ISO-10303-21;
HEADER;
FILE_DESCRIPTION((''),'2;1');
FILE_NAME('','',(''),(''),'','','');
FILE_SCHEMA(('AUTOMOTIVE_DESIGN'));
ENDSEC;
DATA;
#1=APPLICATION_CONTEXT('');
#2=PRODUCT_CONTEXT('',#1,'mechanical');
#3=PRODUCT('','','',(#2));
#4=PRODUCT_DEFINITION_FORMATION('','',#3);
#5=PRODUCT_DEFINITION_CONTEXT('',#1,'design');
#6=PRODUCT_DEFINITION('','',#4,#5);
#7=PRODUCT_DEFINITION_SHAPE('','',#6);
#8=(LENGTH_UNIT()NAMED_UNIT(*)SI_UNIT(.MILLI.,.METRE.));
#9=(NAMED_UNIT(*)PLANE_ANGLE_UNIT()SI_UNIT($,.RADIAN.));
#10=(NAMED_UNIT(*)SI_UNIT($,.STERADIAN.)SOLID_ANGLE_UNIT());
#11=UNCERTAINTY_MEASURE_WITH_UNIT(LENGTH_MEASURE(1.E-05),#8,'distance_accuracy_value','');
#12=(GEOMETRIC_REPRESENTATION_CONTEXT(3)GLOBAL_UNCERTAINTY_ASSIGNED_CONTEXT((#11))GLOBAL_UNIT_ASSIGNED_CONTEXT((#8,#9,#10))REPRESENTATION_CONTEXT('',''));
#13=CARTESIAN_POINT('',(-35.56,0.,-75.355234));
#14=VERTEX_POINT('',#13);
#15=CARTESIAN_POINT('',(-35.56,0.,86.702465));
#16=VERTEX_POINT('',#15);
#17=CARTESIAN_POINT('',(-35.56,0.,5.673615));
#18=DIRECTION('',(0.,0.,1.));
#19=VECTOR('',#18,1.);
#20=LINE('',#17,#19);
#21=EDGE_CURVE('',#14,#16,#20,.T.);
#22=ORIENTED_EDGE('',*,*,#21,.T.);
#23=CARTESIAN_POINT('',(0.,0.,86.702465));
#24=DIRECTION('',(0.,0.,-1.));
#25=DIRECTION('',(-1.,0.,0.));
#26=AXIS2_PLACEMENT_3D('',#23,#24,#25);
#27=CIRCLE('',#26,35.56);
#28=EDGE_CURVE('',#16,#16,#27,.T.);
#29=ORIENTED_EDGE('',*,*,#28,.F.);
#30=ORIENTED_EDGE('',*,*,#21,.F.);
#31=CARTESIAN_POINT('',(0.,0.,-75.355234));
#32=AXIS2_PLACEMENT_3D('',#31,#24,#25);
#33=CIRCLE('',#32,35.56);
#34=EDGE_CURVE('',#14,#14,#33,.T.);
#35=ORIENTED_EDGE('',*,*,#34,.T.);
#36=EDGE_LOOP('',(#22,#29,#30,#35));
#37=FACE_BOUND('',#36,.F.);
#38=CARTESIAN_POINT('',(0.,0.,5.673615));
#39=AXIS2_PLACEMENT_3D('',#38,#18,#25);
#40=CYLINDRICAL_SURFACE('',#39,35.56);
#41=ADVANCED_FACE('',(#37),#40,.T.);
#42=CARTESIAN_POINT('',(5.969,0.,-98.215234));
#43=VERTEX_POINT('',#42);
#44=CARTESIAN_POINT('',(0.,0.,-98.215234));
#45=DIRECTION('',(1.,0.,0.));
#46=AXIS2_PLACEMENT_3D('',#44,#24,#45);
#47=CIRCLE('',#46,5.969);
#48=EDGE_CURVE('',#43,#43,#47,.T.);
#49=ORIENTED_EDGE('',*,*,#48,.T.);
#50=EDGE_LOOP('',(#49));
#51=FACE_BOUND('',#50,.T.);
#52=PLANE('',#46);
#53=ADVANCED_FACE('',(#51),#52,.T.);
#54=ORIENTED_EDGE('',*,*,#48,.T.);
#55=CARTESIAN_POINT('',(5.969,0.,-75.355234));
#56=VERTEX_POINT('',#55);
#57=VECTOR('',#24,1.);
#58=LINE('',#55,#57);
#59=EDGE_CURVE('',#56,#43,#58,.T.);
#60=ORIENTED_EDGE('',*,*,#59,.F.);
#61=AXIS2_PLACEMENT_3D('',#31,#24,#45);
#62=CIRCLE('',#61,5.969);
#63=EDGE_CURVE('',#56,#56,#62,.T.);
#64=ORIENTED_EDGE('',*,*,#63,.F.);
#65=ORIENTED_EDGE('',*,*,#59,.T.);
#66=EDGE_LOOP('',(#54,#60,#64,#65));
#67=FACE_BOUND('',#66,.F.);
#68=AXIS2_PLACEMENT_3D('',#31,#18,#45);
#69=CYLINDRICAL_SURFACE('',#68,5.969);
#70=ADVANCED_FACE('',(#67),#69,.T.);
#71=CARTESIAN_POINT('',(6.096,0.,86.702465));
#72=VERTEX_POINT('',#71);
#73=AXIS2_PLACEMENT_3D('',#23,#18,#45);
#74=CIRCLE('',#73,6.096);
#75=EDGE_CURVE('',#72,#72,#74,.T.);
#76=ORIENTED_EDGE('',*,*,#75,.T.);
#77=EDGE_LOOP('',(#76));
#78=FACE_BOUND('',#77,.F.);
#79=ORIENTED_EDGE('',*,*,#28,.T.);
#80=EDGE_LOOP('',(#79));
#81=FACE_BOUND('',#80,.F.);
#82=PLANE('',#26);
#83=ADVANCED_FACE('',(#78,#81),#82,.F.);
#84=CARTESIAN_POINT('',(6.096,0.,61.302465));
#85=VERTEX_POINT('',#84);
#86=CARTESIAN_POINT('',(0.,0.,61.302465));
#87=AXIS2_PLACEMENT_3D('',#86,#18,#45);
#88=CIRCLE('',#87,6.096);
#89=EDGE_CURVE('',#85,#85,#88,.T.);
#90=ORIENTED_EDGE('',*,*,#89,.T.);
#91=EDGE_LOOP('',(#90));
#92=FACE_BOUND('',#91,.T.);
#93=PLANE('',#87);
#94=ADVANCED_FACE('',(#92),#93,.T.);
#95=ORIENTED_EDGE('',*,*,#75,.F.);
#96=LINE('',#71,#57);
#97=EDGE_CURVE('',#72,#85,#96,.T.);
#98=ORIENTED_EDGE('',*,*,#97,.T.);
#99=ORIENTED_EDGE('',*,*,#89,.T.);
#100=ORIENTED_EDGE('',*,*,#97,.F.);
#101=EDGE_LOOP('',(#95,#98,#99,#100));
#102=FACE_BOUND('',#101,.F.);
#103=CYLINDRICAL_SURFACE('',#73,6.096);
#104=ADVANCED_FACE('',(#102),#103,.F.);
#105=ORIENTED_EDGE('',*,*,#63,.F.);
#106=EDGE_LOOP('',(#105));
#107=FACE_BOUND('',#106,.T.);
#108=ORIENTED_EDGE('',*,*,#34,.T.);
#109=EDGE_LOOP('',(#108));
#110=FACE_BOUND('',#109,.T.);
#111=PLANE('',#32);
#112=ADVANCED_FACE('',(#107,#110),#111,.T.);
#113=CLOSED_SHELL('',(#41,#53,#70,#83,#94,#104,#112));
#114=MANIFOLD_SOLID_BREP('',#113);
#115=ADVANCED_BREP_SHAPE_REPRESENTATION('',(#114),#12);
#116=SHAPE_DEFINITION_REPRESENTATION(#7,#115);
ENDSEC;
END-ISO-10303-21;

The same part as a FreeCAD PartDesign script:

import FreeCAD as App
import Part
import Sketcher
from FreeCAD import Vector
Q = App.Units.Quantity

doc = App.newDocument("Part")
params = doc.addObject("Spreadsheet::Sheet", "Params")
for row, (alias, value) in enumerate([
    ("sketch1_width", "1.4 in"),
    ("revolution_angle", "360 deg"),
    ("sketch2_diameter", "0.47 in"),
    ("pad1_length", "0.9 in"),
    ("sketch3_diameter", "0.48 in"),
    ("pocket1_length", "1 in"),
], start=1):
    params.set(f"A{row}", alias)
    params.set(f"B{row}", "=" + value)
    params.setAlias(f"B{row}", alias)

body = doc.addObject("PartDesign::Body", "Body")

# Sketch on XZ plane
sketch1 = body.newObject("Sketcher::SketchObject", "Sketch")
sketch1.AttachmentSupport = (doc.getObject("XZ_Plane"), [""])
sketch1.MapMode = "FlatFace"
sketch1.addGeometry(Part.LineSegment(Vector(-36, 87, 0), Vector(-36, -75, 0)), False)
sketch1.addGeometry(Part.LineSegment(Vector(-36, -75, 0), Vector(0, -75, 0)), False)
sketch1.addGeometry(Part.LineSegment(Vector(0, -75, 0), Vector(0, 87, 0)), False)
sketch1.addGeometry(Part.LineSegment(Vector(0, 87, 0), Vector(-36, 87, 0)), False)
sketch1.addConstraint(Sketcher.Constraint("Coincident", 0, 2, 1, 1))
sketch1.addConstraint(Sketcher.Constraint("Coincident", 1, 2, 2, 1))
sketch1.addConstraint(Sketcher.Constraint("Coincident", 2, 2, 3, 1))
sketch1.addConstraint(Sketcher.Constraint("Coincident", 3, 2, 0, 1))
sketch1.addConstraint(Sketcher.Constraint("Vertical", 0))
sketch1.addConstraint(Sketcher.Constraint("Horizontal", 1))
sketch1.addConstraint(Sketcher.Constraint("Vertical", 2))
sketch1.addConstraint(Sketcher.Constraint("Horizontal", 3))
sketch1.addConstraint(Sketcher.Constraint("PointOnObject", 1, 2, -2))
sketch1.addConstraint(Sketcher.Constraint("DistanceX", 1, 1, 1, 2, Q("1.4 in")))
sketch1.addConstraint(Sketcher.Constraint("DistanceY", 0, 2, 0, 1, 162.057699))
sketch1.addConstraint(Sketcher.Constraint("DistanceY", 0, 2, -1, 1, 75.355234))
sketch1.setExpression("Constraints[9]", "Params.sketch1_width")
revolution = body.newObject("PartDesign::Revolution", "Revolution")
revolution.Profile = sketch1
revolution.ReferenceAxis = (sketch1, ["V_Axis"])
revolution.setExpression("Angle", "Params.revolution_angle")

# Sketch on XY plane
sketch2 = body.newObject("Sketcher::SketchObject", "Sketch001")
sketch2.AttachmentSupport = (doc.getObject("XY_Plane"), [""])
sketch2.MapMode = "FlatFace"
sketch2.AttachmentOffset = App.Placement(Vector(0, 0, -75.355234), App.Rotation())
sketch2.addGeometry(Part.Circle(Vector(0, 0, 0), Vector(0, 0, 1), 6), False)
sketch2.addConstraint(Sketcher.Constraint("Coincident", 0, 3, -1, 1))
sketch2.addConstraint(Sketcher.Constraint("Diameter", 0, Q("0.47 in")))
sketch2.setExpression("Constraints[1]", "Params.sketch2_diameter")
pad1 = body.newObject("PartDesign::Pad", "Pad")
pad1.Profile = sketch2
pad1.setExpression("Length", "Params.pad1_length")
pad1.Reversed = True

# Sketch on XY plane
sketch3 = body.newObject("Sketcher::SketchObject", "Sketch002")
sketch3.AttachmentSupport = (doc.getObject("XY_Plane"), [""])
sketch3.MapMode = "FlatFace"
sketch3.AttachmentOffset = App.Placement(Vector(0, 0, 86.702465), App.Rotation())
sketch3.addGeometry(Part.Circle(Vector(0, 0, 0), Vector(0, 0, 1), 6), False)
sketch3.addConstraint(Sketcher.Constraint("Coincident", 0, 3, -1, 1))
sketch3.addConstraint(Sketcher.Constraint("Diameter", 0, Q("0.48 in")))
sketch3.setExpression("Constraints[1]", "Params.sketch3_diameter")
pocket1 = body.newObject("PartDesign::Pocket", "Pocket")
pocket1.Profile = sketch3
pocket1.setExpression("Length", "Params.pocket1_length")

doc.recompute()
